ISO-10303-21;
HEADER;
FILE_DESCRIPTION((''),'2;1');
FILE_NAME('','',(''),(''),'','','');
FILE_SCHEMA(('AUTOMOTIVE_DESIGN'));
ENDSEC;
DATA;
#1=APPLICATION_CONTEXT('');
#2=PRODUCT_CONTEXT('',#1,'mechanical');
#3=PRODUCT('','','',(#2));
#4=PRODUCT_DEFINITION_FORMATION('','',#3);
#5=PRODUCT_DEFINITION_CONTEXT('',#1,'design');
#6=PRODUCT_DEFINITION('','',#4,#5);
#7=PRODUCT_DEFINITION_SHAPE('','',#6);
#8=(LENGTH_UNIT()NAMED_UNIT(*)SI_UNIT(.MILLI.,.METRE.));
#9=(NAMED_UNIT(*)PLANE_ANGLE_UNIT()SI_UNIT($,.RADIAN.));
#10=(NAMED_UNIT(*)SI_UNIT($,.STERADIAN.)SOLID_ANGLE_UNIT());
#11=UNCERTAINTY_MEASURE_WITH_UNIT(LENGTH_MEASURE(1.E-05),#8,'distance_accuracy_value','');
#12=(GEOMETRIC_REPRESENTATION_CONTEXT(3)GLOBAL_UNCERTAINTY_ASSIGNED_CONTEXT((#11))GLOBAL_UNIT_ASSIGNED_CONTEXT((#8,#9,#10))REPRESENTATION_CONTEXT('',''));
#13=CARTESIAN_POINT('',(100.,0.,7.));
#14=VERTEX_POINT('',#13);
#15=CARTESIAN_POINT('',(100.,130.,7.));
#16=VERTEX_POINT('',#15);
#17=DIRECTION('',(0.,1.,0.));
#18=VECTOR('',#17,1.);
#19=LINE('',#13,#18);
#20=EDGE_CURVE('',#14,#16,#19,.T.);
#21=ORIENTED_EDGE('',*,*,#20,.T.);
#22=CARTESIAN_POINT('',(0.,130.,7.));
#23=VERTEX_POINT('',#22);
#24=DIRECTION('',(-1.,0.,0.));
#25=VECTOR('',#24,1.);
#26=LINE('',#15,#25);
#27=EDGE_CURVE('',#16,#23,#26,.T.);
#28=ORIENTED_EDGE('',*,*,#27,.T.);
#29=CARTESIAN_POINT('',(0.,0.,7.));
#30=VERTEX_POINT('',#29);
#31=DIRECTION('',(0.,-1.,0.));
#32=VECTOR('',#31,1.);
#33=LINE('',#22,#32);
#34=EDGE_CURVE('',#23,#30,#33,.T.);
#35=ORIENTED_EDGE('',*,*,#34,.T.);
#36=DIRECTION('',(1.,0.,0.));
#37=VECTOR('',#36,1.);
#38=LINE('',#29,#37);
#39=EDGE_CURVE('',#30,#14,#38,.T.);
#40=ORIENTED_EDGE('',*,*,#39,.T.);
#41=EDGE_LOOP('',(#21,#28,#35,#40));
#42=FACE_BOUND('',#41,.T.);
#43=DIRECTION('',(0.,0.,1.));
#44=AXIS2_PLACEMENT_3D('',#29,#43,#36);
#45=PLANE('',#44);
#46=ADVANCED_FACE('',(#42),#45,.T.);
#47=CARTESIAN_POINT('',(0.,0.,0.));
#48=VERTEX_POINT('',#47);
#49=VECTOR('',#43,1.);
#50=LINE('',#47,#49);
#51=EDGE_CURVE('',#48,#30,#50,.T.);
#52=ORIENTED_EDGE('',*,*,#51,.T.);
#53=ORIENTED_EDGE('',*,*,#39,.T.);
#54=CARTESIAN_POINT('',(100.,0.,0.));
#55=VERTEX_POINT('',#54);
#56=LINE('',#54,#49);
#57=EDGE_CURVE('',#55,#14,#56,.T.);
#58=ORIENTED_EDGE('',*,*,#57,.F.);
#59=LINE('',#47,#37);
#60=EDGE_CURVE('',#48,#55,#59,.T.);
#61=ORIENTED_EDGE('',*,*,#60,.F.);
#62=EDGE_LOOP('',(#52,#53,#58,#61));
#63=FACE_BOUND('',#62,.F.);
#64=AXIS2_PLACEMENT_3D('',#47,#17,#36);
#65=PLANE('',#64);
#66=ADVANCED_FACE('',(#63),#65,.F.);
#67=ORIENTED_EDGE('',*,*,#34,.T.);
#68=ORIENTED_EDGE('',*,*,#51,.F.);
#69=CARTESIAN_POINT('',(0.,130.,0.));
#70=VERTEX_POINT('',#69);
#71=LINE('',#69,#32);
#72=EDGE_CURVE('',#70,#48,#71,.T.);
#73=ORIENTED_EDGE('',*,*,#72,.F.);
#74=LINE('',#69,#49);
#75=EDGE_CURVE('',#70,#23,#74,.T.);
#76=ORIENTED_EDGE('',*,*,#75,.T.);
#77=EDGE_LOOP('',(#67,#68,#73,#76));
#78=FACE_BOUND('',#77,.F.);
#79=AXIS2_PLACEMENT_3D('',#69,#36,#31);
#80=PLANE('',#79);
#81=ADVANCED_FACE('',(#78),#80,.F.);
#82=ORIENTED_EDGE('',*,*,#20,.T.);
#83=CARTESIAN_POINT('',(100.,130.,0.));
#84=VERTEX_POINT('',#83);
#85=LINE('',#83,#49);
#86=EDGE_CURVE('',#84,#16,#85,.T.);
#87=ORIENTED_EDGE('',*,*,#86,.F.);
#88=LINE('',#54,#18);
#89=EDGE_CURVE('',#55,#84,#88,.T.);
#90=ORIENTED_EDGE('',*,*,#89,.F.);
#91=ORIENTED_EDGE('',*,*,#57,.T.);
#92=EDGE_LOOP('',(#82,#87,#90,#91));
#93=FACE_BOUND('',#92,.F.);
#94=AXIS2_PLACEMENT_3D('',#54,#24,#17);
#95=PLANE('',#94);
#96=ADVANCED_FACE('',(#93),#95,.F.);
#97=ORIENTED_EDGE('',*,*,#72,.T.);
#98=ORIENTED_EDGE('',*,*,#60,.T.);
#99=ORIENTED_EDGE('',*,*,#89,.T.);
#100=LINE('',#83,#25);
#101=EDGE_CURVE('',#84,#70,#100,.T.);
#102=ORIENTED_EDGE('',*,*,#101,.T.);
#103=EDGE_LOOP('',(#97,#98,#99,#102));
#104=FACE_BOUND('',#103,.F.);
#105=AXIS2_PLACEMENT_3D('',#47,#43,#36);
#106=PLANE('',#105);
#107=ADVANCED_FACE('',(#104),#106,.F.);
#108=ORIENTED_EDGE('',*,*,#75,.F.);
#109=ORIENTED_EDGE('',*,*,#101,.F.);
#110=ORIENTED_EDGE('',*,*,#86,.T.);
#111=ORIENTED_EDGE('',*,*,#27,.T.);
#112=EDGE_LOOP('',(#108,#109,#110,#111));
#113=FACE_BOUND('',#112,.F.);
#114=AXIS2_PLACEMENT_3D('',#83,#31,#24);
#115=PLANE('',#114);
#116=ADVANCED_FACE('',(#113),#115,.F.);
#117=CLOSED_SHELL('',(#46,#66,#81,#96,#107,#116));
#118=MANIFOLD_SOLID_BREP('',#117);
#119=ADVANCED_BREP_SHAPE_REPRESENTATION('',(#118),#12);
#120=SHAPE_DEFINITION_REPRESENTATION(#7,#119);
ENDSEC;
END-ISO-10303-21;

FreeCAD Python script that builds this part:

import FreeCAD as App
import Part
import Sketcher
Q = App.Units.Quantity

doc = App.newDocument("Part")
params = doc.addObject("Spreadsheet::Sheet", "Params")
for row, (alias, value) in enumerate([
    ("sketch1_width", "3.937 in"),
    ("pad1_length", "0.2755906 in"),
], start=1):
    params.set(f"A{row}", alias)
    params.set(f"B{row}", "=" + value)
    params.setAlias(f"B{row}", alias)

body = doc.addObject("PartDesign::Body", "Body")

sketch1 = body.newObject("Sketcher::SketchObject", "Sketch")
sketch1.AttachmentSupport = (doc.getObject("XY_Plane"), [""])
sketch1.MapMode = "FlatFace"
sketch1.addGeometry(Part.LineSegment(App.Vector(0, 130, 0), App.Vector(0, 0, 0)), False)
sketch1.addGeometry(Part.LineSegment(App.Vector(0, 0, 0), App.Vector(100, 0, 0)), False)
sketch1.addGeometry(Part.LineSegment(App.Vector(100, 0, 0), App.Vector(100, 130, 0)), False)
sketch1.addGeometry(Part.LineSegment(App.Vector(100, 130, 0), App.Vector(0, 130, 0)), False)
sketch1.addConstraint(Sketcher.Constraint("Coincident", 0, 2, 1, 1))
sketch1.addConstraint(Sketcher.Constraint("Coincident", 1, 2, 2, 1))
sketch1.addConstraint(Sketcher.Constraint("Coincident", 2, 2, 3, 1))
sketch1.addConstraint(Sketcher.Constraint("Coincident", 3, 2, 0, 1))
sketch1.addConstraint(Sketcher.Constraint("Vertical", 0))
sketch1.addConstraint(Sketcher.Constraint("Horizontal", 1))
sketch1.addConstraint(Sketcher.Constraint("Vertical", 2))
sketch1.addConstraint(Sketcher.Constraint("Horizontal", 3))
sketch1.addConstraint(Sketcher.Constraint("Coincident", 0, 2, -1, 1))
sketch1.addConstraint(Sketcher.Constraint("DistanceX", 1, 1, 1, 2, Q("3.937 in")))
sketch1.addConstraint(Sketcher.Constraint("DistanceY", 0, 2, 0, 1, Q("5.1181 in")))
sketch1.setExpression("Constraints[9]", "Params.sketch1_width")
pad1 = body.newObject("PartDesign::Pad", "Pad")
pad1.Profile = sketch1
pad1.setExpression("Length", "Params.pad1_length")

doc.recompute()
